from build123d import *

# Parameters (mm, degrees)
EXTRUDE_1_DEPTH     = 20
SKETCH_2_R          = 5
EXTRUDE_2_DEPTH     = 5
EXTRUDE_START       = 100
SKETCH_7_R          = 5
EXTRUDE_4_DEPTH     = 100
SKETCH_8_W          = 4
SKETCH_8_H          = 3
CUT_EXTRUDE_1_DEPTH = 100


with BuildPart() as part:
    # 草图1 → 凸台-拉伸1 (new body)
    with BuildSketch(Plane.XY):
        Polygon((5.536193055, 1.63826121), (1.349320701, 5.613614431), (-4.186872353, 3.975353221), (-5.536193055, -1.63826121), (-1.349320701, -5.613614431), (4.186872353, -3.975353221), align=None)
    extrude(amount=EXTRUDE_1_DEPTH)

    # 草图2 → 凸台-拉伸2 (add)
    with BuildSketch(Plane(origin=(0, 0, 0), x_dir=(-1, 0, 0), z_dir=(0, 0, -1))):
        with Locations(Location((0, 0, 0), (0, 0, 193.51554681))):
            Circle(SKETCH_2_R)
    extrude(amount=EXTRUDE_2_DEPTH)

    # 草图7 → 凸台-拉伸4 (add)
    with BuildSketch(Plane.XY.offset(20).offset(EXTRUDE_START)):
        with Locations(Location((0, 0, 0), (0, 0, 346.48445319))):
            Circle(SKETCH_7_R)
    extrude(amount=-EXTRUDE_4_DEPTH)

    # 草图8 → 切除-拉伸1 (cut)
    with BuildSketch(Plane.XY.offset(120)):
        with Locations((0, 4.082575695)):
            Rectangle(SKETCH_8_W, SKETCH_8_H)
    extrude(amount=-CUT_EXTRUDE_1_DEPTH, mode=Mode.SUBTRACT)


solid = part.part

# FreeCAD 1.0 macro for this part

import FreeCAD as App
import Part
import Sketcher
Q = App.Units.Quantity

doc = App.newDocument("Part")
params = doc.addObject("Spreadsheet::Sheet", "Params")
for row, (alias, value) in enumerate([
    ("pad1_length", "20 mm"),
    ("sketch2_diameter", "10 mm"),
    ("pad2_length", "5 mm"),
    ("sketch3_diameter", "10 mm"),
    ("pad3_length", "100 mm"),
    ("sketch4_width", "4 mm"),
    ("sketch4_height", "3 mm"),
    ("pocket1_length", "100 mm"),
], start=1):
    params.set(f"A{row}", alias)
    params.set(f"B{row}", "=" + value)
    params.setAlias(f"B{row}", alias)

body = doc.addObject("PartDesign::Body", "Body")

# Sketch on XY plane
sketch1 = body.newObject("Sketcher::SketchObject", "Sketch")
sketch1.AttachmentSupport = (doc.getObject("XY_Plane"), [""])
sketch1.MapMode = "FlatFace"
sketch1.addGeometry(Part.LineSegment(App.Vector(5.536193, 1.638261, 0), App.Vector(1.349321, 5.613614, 0)), False)
sketch1.addGeometry(Part.LineSegment(App.Vector(1.349321, 5.613614, 0), App.Vector(-4.186872, 3.975353, 0)), False)
sketch1.addGeometry(Part.LineSegment(App.Vector(-4.186872, 3.975353, 0), App.Vector(-5.536193, -1.638261, 0)), False)
sketch1.addGeometry(Part.LineSegment(App.Vector(-5.536193, -1.638261, 0), App.Vector(-1.349321, -5.613614, 0)), False)
sketch1.addGeometry(Part.LineSegment(App.Vector(-1.349321, -5.613614, 0), App.Vector(4.186872, -3.975353, 0)), False)
sketch1.addGeometry(Part.LineSegment(App.Vector(4.186872, -3.975353, 0), App.Vector(5.536193, 1.638261, 0)), False)
sketch1.addConstraint(Sketcher.Constraint("Coincident", 0, 2, 1, 1))
sketch1.addConstraint(Sketcher.Constraint("Coincident", 1, 2, 2, 1))
sketch1.addConstraint(Sketcher.Constraint("Coincident", 2, 2, 3, 1))
sketch1.addConstraint(Sketcher.Constraint("Coincident", 3, 2, 4, 1))
sketch1.addConstraint(Sketcher.Constraint("Coincident", 4, 2, 5, 1))
sketch1.addConstraint(Sketcher.Constraint("Coincident", 5, 2, 0, 1))
sketch1.addConstraint(Sketcher.Constraint("Symmetric", 0, 2, 3, 2, -1, 1))
sketch1.addConstraint(Sketcher.Constraint("Symmetric", 1, 2, 4, 2, -1, 1))
sketch1.addConstraint(Sketcher.Constraint("Symmetric", 2, 2, 5, 2, -1, 1))
sketch1.addConstraint(Sketcher.Constraint("Equal", 0, 1))
sketch1.addConstraint(Sketcher.Constraint("Equal", 1, 2))
sketch1.addConstraint(Sketcher.Constraint("DistanceX", -1, 1, 0, 2, Q("1.349321 mm")))
sketch1.addConstraint(Sketcher.Constraint("DistanceY", 2, 2, -1, 1, Q("1.638261 mm")))
sketch1.addConstraint(Sketcher.Constraint("DistanceY", 1, 2, 0, 2, Q("1.638261 mm")))
sketch1.addConstraint(Sketcher.Constraint("DistanceX", 2, 2, 1, 2, Q("1.349321 mm")))
pad1 = body.newObject("PartDesign::Pad", "Pad")
pad1.Profile = sketch1
pad1.setExpression("Length", "Params.pad1_length")

# Sketch on XY plane
sketch2 = body.newObject("Sketcher::SketchObject", "Sketch001")
sketch2.AttachmentSupport = (doc.getObject("XY_Plane"), [""])
sketch2.MapMode = "FlatFace"
sketch2.addGeometry(Part.Circle(App.Vector(0, 0, 0), App.Vector(0, 0, 1), 5), False)
sketch2.addConstraint(Sketcher.Constraint("Coincident", 0, 3, -1, 1))
sketch2.addConstraint(Sketcher.Constraint("Diameter", 0, Q("10 mm")))
sketch2.setExpression("Constraints[1]", "Params.sketch2_diameter")
pad2 = body.newObject("PartDesign::Pad", "Pad001")
pad2.Profile = sketch2
pad2.setExpression("Length", "Params.pad2_length")
pad2.Reversed = True

# Sketch on XY plane
sketch3 = body.newObject("Sketcher::SketchObject", "Sketch002")
sketch3.AttachmentSupport = (doc.getObject("XY_Plane"), [""])
sketch3.MapMode = "FlatFace"
sketch3.AttachmentOffset = App.Placement(App.Vector(0, 0, 120), App.Rotation())
sketch3.addGeometry(Part.Circle(App.Vector(0, 0, 0), App.Vector(0, 0, 1), 5), False)
sketch3.addConstraint(Sketcher.Constraint("Coincident", 0, 3, -1, 1))
sketch3.addConstraint(Sketcher.Constraint("Diameter", 0, Q("10 mm")))
sketch3.setExpression("Constraints[1]", "Params.sketch3_diameter")
pad3 = body.newObject("PartDesign::Pad", "Pad002")
pad3.Profile = sketch3
pad3.setExpression("Length", "Params.pad3_length")
pad3.Reversed = True

# Sketch on XY plane
sketch4 = body.newObject("Sketcher::SketchObject", "Sketch003")
sketch4.AttachmentSupport = (doc.getObject("XY_Plane"), [""])
sketch4.MapMode = "FlatFace"
sketch4.AttachmentOffset = App.Placement(App.Vector(0, 0, 120), App.Rotation())
sketch4.addGeometry(Part.LineSegment(App.Vector(-2, 5.582576, 0), App.Vector(-2, 2.582576, 0)), False)
sketch4.addGeometry(Part.LineSegment(App.Vector(-2, 2.582576, 0), App.Vector(2, 2.582576, 0)), False)
sketch4.addGeometry(Part.LineSegment(App.Vector(2, 2.582576, 0), App.Vector(2, 5.582576, 0)), False)
sketch4.addGeometry(Part.LineSegment(App.Vector(2, 5.582576, 0), App.Vector(-2, 5.582576, 0)), False)
sketch4.addConstraint(Sketcher.Constraint("Coincident", 0, 2, 1, 1))
sketch4.addConstraint(Sketcher.Constraint("Coincident", 1, 2, 2, 1))
sketch4.addConstraint(Sketcher.Constraint("Coincident", 2, 2, 3, 1))
sketch4.addConstraint(Sketcher.Constraint("Coincident", 3, 2, 0, 1))
sketch4.addConstraint(Sketcher.Constraint("Vertical", 0))
sketch4.addConstraint(Sketcher.Constraint("Horizontal", 1))
sketch4.addConstraint(Sketcher.Constraint("Vertical", 2))
sketch4.addConstraint(Sketcher.Constraint("Horizontal", 3))
sketch4.addConstraint(Sketcher.Constraint("DistanceX", 1, 1, 1, 2, Q("4 mm")))
sketch4.addConstraint(Sketcher.Constraint("DistanceY", 0, 2, 0, 1, Q("3 mm")))
sketch4.addConstraint(Sketcher.Constraint("DistanceX", 0, 2, -1, 1, Q("2 mm")))
sketch4.addConstraint(Sketcher.Constraint("DistanceY", -1, 1, 0, 2, Q("2.582576 mm")))
sketch4.setExpression("Constraints[8]", "Params.sketch4_width")
sketch4.setExpression("Constraints[9]", "Params.sketch4_height")
pocket1 = body.newObject("PartDesign::Pocket", "Pocket")
pocket1.Profile = sketch4
pocket1.setExpression("Length", "Params.pocket1_length")

doc.recompute()
